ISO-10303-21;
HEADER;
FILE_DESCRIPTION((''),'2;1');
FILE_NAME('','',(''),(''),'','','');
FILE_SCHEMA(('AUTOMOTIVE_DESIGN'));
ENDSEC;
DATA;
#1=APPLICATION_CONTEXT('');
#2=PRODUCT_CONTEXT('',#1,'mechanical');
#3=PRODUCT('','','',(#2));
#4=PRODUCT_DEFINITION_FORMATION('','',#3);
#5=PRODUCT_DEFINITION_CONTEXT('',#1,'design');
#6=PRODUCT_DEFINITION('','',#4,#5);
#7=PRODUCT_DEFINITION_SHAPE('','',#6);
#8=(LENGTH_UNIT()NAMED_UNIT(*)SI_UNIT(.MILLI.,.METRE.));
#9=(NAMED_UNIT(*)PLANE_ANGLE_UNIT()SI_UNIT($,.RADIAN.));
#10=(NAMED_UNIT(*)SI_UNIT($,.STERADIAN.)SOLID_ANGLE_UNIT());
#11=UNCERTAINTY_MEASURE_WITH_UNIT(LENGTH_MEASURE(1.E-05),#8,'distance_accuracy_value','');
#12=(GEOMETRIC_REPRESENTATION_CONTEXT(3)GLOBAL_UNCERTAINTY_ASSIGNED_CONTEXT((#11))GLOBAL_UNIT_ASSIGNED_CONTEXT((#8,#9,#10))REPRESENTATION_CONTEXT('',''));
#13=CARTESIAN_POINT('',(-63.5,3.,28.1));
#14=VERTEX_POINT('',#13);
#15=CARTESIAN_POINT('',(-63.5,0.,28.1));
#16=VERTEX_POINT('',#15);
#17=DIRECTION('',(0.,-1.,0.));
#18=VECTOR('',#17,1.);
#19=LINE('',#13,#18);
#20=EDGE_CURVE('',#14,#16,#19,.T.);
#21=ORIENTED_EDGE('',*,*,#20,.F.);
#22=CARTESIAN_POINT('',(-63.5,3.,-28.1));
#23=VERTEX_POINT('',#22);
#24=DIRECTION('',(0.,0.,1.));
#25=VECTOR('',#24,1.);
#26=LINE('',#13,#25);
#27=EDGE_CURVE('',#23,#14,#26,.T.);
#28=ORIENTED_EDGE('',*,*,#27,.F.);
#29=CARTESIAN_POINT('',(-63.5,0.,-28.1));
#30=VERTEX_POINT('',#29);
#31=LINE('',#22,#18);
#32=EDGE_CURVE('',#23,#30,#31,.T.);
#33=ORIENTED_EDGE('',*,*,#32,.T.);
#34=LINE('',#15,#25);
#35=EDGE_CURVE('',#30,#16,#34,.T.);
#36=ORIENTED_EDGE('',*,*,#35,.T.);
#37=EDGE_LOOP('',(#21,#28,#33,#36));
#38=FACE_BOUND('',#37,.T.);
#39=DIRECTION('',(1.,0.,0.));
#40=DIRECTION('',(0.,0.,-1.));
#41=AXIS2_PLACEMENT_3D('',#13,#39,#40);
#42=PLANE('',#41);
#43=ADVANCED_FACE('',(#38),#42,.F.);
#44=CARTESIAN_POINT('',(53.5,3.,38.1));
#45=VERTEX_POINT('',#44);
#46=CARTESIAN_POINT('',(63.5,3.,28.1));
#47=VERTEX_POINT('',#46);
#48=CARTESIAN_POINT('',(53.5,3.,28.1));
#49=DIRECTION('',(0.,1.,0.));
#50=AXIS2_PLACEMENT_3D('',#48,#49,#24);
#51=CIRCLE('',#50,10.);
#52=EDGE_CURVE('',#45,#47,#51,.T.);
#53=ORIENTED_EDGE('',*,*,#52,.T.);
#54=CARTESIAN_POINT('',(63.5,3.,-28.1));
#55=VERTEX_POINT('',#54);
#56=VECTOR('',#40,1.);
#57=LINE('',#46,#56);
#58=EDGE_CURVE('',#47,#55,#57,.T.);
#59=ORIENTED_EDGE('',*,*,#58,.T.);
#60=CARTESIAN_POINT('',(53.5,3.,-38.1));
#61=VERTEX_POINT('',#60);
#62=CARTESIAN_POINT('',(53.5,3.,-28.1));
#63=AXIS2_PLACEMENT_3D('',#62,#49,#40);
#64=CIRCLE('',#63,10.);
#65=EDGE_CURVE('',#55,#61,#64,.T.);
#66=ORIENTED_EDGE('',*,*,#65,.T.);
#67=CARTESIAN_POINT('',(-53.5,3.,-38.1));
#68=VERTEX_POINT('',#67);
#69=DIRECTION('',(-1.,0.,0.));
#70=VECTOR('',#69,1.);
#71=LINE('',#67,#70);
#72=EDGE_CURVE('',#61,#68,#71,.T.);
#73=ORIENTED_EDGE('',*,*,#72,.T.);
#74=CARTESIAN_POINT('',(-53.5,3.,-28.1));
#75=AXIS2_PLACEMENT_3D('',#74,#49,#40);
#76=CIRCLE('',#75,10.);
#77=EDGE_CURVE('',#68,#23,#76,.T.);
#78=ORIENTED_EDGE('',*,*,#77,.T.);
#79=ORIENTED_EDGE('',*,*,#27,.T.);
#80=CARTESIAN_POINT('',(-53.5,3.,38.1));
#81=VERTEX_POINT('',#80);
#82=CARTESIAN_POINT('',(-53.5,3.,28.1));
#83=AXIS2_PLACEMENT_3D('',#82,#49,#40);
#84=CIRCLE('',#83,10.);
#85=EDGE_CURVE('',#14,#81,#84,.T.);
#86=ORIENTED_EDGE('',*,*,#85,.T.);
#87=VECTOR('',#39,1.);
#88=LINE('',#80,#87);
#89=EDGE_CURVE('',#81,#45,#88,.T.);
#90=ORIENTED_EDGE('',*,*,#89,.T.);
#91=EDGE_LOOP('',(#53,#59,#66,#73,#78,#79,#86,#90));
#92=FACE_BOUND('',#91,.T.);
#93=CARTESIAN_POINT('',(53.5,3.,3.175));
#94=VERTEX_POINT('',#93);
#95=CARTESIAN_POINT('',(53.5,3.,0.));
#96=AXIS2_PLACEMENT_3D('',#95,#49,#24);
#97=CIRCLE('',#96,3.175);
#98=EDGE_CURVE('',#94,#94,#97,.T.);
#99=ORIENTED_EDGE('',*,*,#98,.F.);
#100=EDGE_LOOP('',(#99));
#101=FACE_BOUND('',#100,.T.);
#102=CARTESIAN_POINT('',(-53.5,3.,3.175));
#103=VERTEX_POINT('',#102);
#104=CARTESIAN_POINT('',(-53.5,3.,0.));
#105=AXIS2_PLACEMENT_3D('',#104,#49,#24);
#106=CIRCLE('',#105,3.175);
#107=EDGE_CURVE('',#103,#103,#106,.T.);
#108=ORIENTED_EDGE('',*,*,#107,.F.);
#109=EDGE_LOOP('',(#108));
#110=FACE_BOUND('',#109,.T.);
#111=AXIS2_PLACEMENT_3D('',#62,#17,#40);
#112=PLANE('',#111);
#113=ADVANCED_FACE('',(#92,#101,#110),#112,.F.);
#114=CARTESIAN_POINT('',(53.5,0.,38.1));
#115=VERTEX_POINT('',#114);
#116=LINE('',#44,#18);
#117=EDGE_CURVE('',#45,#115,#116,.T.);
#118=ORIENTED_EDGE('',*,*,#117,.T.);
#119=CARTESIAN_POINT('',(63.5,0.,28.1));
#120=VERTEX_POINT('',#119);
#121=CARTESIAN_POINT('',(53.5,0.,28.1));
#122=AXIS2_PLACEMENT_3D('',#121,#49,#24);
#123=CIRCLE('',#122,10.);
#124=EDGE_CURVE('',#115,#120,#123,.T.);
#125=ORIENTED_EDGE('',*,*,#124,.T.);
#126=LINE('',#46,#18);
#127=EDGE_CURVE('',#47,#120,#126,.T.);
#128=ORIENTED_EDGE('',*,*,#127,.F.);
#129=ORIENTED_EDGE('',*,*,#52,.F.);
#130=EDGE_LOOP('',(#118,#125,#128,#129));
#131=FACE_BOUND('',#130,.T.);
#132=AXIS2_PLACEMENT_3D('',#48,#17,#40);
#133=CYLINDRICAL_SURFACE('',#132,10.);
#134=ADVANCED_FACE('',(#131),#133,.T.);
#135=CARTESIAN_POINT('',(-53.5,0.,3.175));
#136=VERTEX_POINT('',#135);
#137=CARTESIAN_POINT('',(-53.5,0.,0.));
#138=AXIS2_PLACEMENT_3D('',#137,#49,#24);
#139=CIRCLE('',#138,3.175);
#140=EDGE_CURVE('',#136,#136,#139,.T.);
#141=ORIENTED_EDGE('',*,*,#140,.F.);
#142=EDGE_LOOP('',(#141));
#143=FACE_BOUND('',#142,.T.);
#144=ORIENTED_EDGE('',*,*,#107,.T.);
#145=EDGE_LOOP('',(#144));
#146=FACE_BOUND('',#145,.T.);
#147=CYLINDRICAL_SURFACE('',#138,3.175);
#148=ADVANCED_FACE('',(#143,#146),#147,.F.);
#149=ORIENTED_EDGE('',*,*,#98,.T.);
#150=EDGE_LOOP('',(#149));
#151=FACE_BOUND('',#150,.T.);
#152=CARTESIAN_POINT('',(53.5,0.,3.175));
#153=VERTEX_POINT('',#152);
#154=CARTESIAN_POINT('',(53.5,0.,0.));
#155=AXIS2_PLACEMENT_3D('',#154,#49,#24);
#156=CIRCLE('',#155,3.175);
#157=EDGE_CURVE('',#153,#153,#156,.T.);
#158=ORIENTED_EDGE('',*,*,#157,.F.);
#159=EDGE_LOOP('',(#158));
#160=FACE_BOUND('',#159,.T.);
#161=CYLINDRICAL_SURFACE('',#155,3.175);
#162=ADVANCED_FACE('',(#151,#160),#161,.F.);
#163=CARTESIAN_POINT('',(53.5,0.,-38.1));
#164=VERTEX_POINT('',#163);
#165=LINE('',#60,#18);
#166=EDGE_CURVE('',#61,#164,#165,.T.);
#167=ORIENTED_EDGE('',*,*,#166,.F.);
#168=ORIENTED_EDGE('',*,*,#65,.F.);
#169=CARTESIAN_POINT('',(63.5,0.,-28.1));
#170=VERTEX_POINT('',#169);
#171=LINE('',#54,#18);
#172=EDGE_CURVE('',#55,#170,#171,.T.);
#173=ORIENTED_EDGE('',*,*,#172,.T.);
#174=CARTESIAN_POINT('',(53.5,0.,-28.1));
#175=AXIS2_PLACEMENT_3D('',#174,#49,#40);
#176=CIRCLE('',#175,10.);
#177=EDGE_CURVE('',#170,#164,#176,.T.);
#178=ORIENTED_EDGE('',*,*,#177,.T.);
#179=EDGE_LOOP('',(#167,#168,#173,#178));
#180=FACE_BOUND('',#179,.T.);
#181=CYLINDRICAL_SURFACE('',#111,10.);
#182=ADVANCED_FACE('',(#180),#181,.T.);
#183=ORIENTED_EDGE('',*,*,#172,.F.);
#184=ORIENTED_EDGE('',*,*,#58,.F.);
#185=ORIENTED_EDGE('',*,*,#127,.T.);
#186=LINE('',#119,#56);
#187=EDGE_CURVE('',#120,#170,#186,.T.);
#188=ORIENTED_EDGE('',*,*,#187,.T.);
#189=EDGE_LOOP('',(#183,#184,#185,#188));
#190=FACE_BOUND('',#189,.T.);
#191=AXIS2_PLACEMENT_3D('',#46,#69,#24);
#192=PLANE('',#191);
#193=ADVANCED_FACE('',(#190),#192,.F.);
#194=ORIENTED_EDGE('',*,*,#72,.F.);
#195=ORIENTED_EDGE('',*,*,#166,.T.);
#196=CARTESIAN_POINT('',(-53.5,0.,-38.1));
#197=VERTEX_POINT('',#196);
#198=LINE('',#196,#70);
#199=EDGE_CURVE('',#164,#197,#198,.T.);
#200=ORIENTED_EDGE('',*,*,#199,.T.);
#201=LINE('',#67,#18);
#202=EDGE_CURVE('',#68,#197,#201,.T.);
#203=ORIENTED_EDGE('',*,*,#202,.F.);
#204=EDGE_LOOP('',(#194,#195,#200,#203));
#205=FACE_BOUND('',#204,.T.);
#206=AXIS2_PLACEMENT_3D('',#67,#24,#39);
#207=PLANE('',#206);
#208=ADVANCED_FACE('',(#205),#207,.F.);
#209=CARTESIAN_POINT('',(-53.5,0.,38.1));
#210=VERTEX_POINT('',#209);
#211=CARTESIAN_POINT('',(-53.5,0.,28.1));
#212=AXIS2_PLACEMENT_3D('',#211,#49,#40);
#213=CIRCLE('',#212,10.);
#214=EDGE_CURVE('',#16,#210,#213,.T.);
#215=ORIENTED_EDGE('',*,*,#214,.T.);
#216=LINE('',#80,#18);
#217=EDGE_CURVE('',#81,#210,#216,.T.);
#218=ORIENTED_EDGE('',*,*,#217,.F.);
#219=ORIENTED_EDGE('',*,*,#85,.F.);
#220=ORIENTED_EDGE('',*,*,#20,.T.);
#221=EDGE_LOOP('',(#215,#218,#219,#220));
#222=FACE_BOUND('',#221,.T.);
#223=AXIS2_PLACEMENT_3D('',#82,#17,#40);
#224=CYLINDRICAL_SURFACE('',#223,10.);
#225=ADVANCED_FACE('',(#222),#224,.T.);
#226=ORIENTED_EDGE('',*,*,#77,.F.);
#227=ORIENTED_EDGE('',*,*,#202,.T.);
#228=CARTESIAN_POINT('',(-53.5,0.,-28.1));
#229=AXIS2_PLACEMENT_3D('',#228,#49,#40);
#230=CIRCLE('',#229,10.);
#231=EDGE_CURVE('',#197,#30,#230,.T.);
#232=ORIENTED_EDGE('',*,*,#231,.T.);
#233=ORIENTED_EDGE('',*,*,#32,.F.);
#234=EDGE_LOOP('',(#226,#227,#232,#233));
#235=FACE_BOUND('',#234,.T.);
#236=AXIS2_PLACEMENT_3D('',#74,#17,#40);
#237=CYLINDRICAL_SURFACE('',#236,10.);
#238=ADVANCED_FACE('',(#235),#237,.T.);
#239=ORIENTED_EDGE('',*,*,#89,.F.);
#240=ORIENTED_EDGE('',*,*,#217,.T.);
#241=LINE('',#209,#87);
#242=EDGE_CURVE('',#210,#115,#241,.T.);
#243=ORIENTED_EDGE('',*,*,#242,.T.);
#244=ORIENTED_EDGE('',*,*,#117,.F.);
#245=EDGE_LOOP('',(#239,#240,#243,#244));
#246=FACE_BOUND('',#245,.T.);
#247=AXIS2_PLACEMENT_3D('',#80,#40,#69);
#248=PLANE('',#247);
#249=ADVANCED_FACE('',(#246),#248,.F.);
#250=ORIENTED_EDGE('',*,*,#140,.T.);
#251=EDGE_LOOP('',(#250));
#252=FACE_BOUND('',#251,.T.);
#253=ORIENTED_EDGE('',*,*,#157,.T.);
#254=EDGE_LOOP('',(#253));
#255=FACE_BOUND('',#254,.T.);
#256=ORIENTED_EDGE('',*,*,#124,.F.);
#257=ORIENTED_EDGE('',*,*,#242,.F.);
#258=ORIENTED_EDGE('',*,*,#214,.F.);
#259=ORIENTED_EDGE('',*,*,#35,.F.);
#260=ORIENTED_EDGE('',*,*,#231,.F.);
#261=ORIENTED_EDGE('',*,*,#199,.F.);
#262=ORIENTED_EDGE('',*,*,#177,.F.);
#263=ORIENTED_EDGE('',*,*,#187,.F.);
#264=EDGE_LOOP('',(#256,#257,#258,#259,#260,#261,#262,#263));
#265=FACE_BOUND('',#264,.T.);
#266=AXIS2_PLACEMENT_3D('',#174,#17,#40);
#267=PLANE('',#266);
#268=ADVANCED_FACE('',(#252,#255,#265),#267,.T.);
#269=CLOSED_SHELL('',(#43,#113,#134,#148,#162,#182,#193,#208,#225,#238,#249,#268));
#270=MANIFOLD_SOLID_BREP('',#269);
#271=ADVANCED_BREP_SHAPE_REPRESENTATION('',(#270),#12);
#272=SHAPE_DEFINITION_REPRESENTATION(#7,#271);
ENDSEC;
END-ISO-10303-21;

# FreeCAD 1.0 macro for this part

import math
import FreeCAD as App
import Part
import Sketcher

V = App.Vector

doc = App.newDocument("Part")
body = doc.addObject("PartDesign::Body", "Body")

sketch1 = doc.addObject("Sketcher::SketchObject", "Sketch")
body.addObject(sketch1)
sketch1.AttachmentSupport = (doc.XZ_Plane, [""])
sketch1.MapMode = "FlatFace"
sketch1.addGeometry([
    Part.LineSegment(V(-53.5, 38.1, 0), V(53.5, 38.1, 0)),
    Part.ArcOfCircle(Part.Circle(V(53.5, 28.1, 0), V(0, 0, 1), 10), math.radians(0), math.radians(90)),
    Part.LineSegment(V(63.5, 28.1, 0), V(63.5, -28.1, 0)),
    Part.ArcOfCircle(Part.Circle(V(53.5, -28.1, 0), V(0, 0, 1), 10), math.radians(-90), math.radians(0)),
    Part.LineSegment(V(53.5, -38.1, 0), V(-53.5, -38.1, 0)),
    Part.ArcOfCircle(Part.Circle(V(-53.5, -28.1, 0), V(0, 0, 1), 10), math.radians(180), math.radians(270)),
    Part.LineSegment(V(-63.5, -28.1, 0), V(-63.5, 28.1, 0)),
    Part.ArcOfCircle(Part.Circle(V(-53.5, 28.1, 0), V(0, 0, 1), 10), math.radians(90), math.radians(180)),
], False)
sketch1.addConstraint([
    Sketcher.Constraint("Tangent", 0, 2, 1, 2),
    Sketcher.Constraint("Tangent", 1, 1, 2, 1),
    Sketcher.Constraint("Tangent", 2, 2, 3, 2),
    Sketcher.Constraint("Tangent", 3, 1, 4, 1),
    Sketcher.Constraint("Tangent", 4, 2, 5, 2),
    Sketcher.Constraint("Tangent", 5, 1, 6, 1),
    Sketcher.Constraint("Tangent", 6, 2, 7, 2),
    Sketcher.Constraint("Tangent", 7, 1, 0, 1),
    Sketcher.Constraint("Horizontal", 0),
    Sketcher.Constraint("Vertical", 2),
    Sketcher.Constraint("Horizontal", 4),
    Sketcher.Constraint("Vertical", 6),
    Sketcher.Constraint("Equal", 1, 3),
    Sketcher.Constraint("Equal", 3, 5),
    Sketcher.Constraint("Equal", 5, 7),
    Sketcher.Constraint("Symmetric", 1, 3, 5, 3, -1, 1),
    Sketcher.Constraint("Radius", 1, 10.0),
    Sketcher.Constraint("DistanceX", 0, 1, 0, 2, 107.0),
    Sketcher.Constraint("DistanceY", 2, 2, 2, 1, 56.2),
])
pad1 = doc.addObject("PartDesign::Pad", "Pad")
body.addObject(pad1)
pad1.Profile = sketch1
pad1.Length = 3
pad1.Reversed = True

sketch2 = doc.addObject("Sketcher::SketchObject", "Sketch001")
body.addObject(sketch2)
sketch2.AttachmentSupport = (doc.XZ_Plane, [""])
sketch2.MapMode = "FlatFace"
sketch2.AttachmentOffset = App.Placement(V(0, 0, -3), App.Rotation())
sketch2.addGeometry([
    Part.Circle(V(-53.5, 0, 0), V(0, 0, 1), 3.175),
    Part.Circle(V(53.5, 0, 0), V(0, 0, 1), 3.175),
], False)
sketch2.addConstraint([
    Sketcher.Constraint("Equal", 0, 1),
    Sketcher.Constraint("Symmetric", 0, 3, 1, 3, -1, 1),
    Sketcher.Constraint("PointOnObject", 0, 3, -1),
    Sketcher.Constraint("Diameter", 0, 6.35),
    Sketcher.Constraint("DistanceX", 0, 3, 1, 3, 107.0),
])
pocket1 = doc.addObject("PartDesign::Pocket", "Pocket")
body.addObject(pocket1)
pocket1.Profile = sketch2
pocket1.Length = 3
pocket1.Reversed = True

doc.recompute()
